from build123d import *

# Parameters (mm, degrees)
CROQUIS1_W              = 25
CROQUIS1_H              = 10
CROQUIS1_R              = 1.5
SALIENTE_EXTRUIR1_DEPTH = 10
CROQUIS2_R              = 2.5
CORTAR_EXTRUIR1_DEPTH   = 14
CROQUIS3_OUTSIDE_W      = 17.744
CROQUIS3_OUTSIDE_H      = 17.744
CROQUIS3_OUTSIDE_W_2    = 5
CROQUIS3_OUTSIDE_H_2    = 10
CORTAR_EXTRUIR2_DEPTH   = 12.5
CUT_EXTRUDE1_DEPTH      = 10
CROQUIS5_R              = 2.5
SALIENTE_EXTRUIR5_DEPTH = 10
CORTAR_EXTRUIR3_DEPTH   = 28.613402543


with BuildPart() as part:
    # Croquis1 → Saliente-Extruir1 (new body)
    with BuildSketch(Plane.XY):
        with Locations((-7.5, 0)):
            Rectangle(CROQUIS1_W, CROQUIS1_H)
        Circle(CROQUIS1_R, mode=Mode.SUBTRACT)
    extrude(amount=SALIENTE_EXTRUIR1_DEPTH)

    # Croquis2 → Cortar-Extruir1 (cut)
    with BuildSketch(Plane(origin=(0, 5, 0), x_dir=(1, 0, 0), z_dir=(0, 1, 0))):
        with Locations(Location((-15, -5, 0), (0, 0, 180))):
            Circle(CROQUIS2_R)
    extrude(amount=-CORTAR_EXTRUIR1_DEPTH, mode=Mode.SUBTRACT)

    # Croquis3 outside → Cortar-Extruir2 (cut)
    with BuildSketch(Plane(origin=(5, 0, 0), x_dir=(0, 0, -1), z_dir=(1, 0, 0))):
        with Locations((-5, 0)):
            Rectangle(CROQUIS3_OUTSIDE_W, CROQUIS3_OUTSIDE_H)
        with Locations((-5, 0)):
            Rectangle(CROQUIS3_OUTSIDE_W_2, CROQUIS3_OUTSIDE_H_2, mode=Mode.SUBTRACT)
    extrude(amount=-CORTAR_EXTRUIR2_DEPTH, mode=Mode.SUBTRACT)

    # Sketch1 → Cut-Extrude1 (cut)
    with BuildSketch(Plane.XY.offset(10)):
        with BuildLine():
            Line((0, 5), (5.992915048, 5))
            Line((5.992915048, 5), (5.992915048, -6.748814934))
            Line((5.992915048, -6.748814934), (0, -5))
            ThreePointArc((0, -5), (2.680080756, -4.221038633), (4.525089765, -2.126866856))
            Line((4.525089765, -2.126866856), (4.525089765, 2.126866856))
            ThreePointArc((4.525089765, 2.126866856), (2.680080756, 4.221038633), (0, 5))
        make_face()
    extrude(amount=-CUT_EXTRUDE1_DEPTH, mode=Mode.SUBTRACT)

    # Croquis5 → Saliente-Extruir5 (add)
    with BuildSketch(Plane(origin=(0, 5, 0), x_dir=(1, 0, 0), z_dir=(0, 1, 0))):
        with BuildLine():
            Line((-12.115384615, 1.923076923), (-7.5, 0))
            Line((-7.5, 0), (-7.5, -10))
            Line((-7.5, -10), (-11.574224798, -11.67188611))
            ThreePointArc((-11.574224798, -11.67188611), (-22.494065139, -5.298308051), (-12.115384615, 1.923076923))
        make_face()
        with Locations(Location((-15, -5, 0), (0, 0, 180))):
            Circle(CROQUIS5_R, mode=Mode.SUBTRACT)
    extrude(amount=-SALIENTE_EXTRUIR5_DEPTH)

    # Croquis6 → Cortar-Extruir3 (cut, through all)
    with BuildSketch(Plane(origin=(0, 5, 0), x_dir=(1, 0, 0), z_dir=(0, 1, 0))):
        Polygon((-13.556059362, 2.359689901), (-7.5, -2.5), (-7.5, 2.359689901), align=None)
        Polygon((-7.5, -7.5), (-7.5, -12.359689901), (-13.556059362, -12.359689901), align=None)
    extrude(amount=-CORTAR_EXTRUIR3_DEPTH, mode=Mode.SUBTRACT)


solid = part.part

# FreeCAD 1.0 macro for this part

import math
import FreeCAD as App
import Part
import Sketcher

V = App.Vector


def add_polygon(sketch, points):
    """Adds a closed chain of lines whose ends are joined by coincident constraints."""
    first, n = sketch.GeometryCount, len(points)
    for a, b in zip(points, points[1:] + points[:1]):
        sketch.addGeometry(Part.LineSegment(App.Vector(*a, 0), App.Vector(*b, 0)), False)
    for i in range(n):
        sketch.addConstraint(Sketcher.Constraint("Coincident", first + i, 2, first + (i + 1) % n, 1))

doc = App.newDocument("Part")
body = doc.addObject("PartDesign::Body", "Body")

# Sketch on XY plane
sketch1 = body.newObject("Sketcher::SketchObject", "Sketch")
sketch1.AttachmentSupport = (doc.getObject("XY_Plane"), [""])
sketch1.MapMode = "FlatFace"
add_polygon(sketch1, [(-20, 5), (-20, -5), (5, -5), (5, 5)])  # lines 0-3
sketch1.addGeometry(Part.Circle(V(0, 0, 0), V(0, 0, 1), 1.5), False)  # 4
sketch1.addConstraint([
    Sketcher.Constraint("Vertical", 0),
    Sketcher.Constraint("Horizontal", 1),
    Sketcher.Constraint("Vertical", 2),
    Sketcher.Constraint("Horizontal", 3),
    Sketcher.Constraint("Coincident", 4, 3, -1, 1),
    Sketcher.Constraint("Diameter", 4, 3.0),
    Sketcher.Constraint("DistanceX", 1, 1, 1, 2, 25.0),
    Sketcher.Constraint("DistanceY", 0, 2, 0, 1, 10.0),
    Sketcher.Constraint("DistanceX", 0, 2, -1, 1, 20.0),
    Sketcher.Constraint("DistanceY", 0, 2, -1, 1, 5.0),
])
pad1 = body.newObject("PartDesign::Pad", "Pad")
pad1.Profile = sketch1
pad1.Length = 10

# Sketch on XZ plane
sketch2 = body.newObject("Sketcher::SketchObject", "Sketch001")
sketch2.AttachmentSupport = (doc.getObject("XZ_Plane"), [""])
sketch2.MapMode = "FlatFace"
sketch2.AttachmentOffset = App.Placement(V(0, 0, -5), App.Rotation())
sketch2.addGeometry(Part.Circle(V(-15, 5, 0), V(0, 0, 1), 2.5), False)
sketch2.addConstraint([
    Sketcher.Constraint("Diameter", 0, 5.0),
    Sketcher.Constraint("DistanceX", 0, 3, -1, 1, 15.0),
    Sketcher.Constraint("DistanceY", -1, 1, 0, 3, 5.0),
])
pocket1 = body.newObject("PartDesign::Pocket", "Pocket")
pocket1.Profile = sketch2
pocket1.Length = 14
pocket1.Reversed = True

# Sketch on YZ plane
sketch3 = body.newObject("Sketcher::SketchObject", "Sketch002")
sketch3.AttachmentSupport = (doc.getObject("YZ_Plane"), [""])
sketch3.MapMode = "FlatFace"
sketch3.AttachmentOffset = App.Placement(V(0, 0, 5), App.Rotation())
add_polygon(sketch3, [(8.872, 13.872), (-8.872, 13.872), (-8.872, -3.872), (8.872, -3.872)])  # lines 0-3
add_polygon(sketch3, [(-5, 2.5), (-5, 7.5), (5, 7.5), (5, 2.5)])  # lines 4-7
sketch3.addConstraint([
    Sketcher.Constraint("Horizontal", 0),
    Sketcher.Constraint("Vertical", 1),
    Sketcher.Constraint("Horizontal", 2),
    Sketcher.Constraint("Vertical", 3),
    Sketcher.Constraint("Vertical", 4),
    Sketcher.Constraint("Horizontal", 5),
    Sketcher.Constraint("Vertical", 6),
    Sketcher.Constraint("Horizontal", 7),
    Sketcher.Constraint("Equal", 2, 1),
    Sketcher.Constraint("DistanceX", 5, 1, 5, 2, 10.0),
    Sketcher.Constraint("DistanceY", 4, 1, 4, 2, 5.0),
    Sketcher.Constraint("DistanceX", 4, 2, -1, 1, 5.0),
    Sketcher.Constraint("DistanceY", -1, 1, 4, 2, 7.5),
    Sketcher.Constraint("DistanceX", 0, 2, 0, 1, 17.744),
    Sketcher.Constraint("DistanceX", 0, 2, -1, 1, 8.872),
    Sketcher.Constraint("DistanceY", -1, 1, 0, 2, 13.872),
])
pocket2 = body.newObject("PartDesign::Pocket", "Pocket001")
pocket2.Profile = sketch3
pocket2.Length = 12.5

# Sketch on XY plane
sketch4 = body.newObject("Sketcher::SketchObject", "Sketch003")
sketch4.AttachmentSupport = (doc.getObject("XY_Plane"), [""])
sketch4.MapMode = "FlatFace"
sketch4.AttachmentOffset = App.Placement(V(0, 0, 10), App.Rotation())
sketch4.addGeometry([
    Part.LineSegment(V(5.992915, 5, 0), V(0, 5, 0)),  # 0
    Part.ArcOfCircle(Part.Circle(V(0, 0, 0), V(0, 0, 1), 5), math.radians(25.174299), math.radians(90)),  # 1
    Part.LineSegment(V(4.52509, 2.126867, 0), V(4.52509, -2.126867, 0)),  # 2
    Part.ArcOfCircle(Part.Circle(V(0, 0, 0), V(0, 0, 1), 5), math.radians(-90), math.radians(-25.174299)),  # 3
    Part.LineSegment(V(0, -5, 0), V(5.992915, -6.748815, 0)),  # 4
    Part.LineSegment(V(5.992915, -6.748815, 0), V(5.992915, 5, 0)),  # 5
], False)
sketch4.addConstraint([
    Sketcher.Constraint("Tangent", 0, 2, 1, 2),
    Sketcher.Constraint("Coincident", 1, 1, 2, 1),
    Sketcher.Constraint("Coincident", 2, 2, 3, 2),
    Sketcher.Constraint("Coincident", 3, 1, 4, 1),
    Sketcher.Constraint("Coincident", 4, 2, 5, 1),
    Sketcher.Constraint("Coincident", 5, 2, 0, 1),
    Sketcher.Constraint("Horizontal", 0),
    Sketcher.Constraint("Vertical", 2),
    Sketcher.Constraint("Vertical", 5),
    Sketcher.Constraint("Coincident", 1, 3, -1, 1),
    Sketcher.Constraint("Coincident", 3, 3, -1, 1),
    Sketcher.Constraint("Equal", 1, 3),
    Sketcher.Constraint("PointOnObject", 3, 1, -2),
    Sketcher.Constraint("Radius", 1, 5.0),
    Sketcher.Constraint("DistanceX", 0, 2, 0, 1, 5.992915),
    Sketcher.Constraint("DistanceY", 2, 2, 2, 1, 4.253734),
    Sketcher.Constraint("DistanceY", 5, 1, 5, 2, 11.748815),
])
pocket3 = body.newObject("PartDesign::Pocket", "Pocket002")
pocket3.Profile = sketch4
pocket3.Length = 10

# Sketch on XZ plane
sketch5 = body.newObject("Sketcher::SketchObject", "Sketch004")
sketch5.AttachmentSupport = (doc.getObject("XZ_Plane"), [""])
sketch5.MapMode = "FlatFace"
sketch5.AttachmentOffset = App.Placement(V(0, 0, -5), App.Rotation())
sketch5.addGeometry([
    Part.LineSegment(V(-7.5, 0, 0), V(-12.115385, -1.923077, 0)),  # 0
    Part.ArcOfCircle(Part.Circle(V(-15, 5, 0), V(0, 0, 1), 7.5), math.radians(62.821121), math.radians(292.619865)),  # 1
    Part.LineSegment(V(-11.574225, 11.671886, 0), V(-7.5, 10, 0)),  # 2
    Part.LineSegment(V(-7.5, 10, 0), V(-7.5, 0, 0)),  # 3
    Part.Circle(V(-15, 5, 0), V(0, 0, 1), 2.5),  # 4
], False)
sketch5.addConstraint([
    Sketcher.Constraint("Tangent", 0, 2, 1, 2),
    Sketcher.Constraint("Coincident", 1, 1, 2, 1),
    Sketcher.Constraint("Coincident", 2, 2, 3, 1),
    Sketcher.Constraint("Coincident", 3, 2, 0, 1),
    Sketcher.Constraint("Vertical", 3),
    Sketcher.Constraint("Coincident", 4, 3, 1, 3),
    Sketcher.Constraint("PointOnObject", 3, 2, -1),
    Sketcher.Constraint("Diameter", 4, 5.0),
    Sketcher.Constraint("Radius", 1, 7.5),
    Sketcher.Constraint("DistanceY", 3, 2, 3, 1, 10.0),
    Sketcher.Constraint("Distance", 0, 5.0),
    Sketcher.Constraint("DistanceX", 1, 3, -1, 1, 15.0),
    Sketcher.Constraint("DistanceY", -1, 1, 1, 3, 5.0),
    Sketcher.Constraint("Distance", 2, 4.40392),
])
pad2 = body.newObject("PartDesign::Pad", "Pad001")
pad2.Profile = sketch5
pad2.Length = 10

# Sketch on XZ plane
sketch6 = body.newObject("Sketcher::SketchObject", "Sketch005")
sketch6.AttachmentSupport = (doc.getObject("XZ_Plane"), [""])
sketch6.MapMode = "FlatFace"
sketch6.AttachmentOffset = App.Placement(V(0, 0, -5), App.Rotation())
add_polygon(sketch6, [(-13.556059, -2.35969), (-7.5, 2.5), (-7.5, -2.35969)])  # lines 0-2
add_polygon(sketch6, [(-7.5, 12.35969), (-7.5, 7.5), (-13.556059, 12.35969)])  # lines 3-5
sketch6.addConstraint([
    Sketcher.Constraint("Vertical", 1),
    Sketcher.Constraint("Horizontal", 2),
    Sketcher.Constraint("Vertical", 3),
    Sketcher.Constraint("Horizontal", 5),
    Sketcher.Constraint("Vertical", 1, 2, 3, 2),
    Sketcher.Constraint("Vertical", 2, 2, 4, 2),
    Sketcher.Constraint("Equal", 1, 3),
    Sketcher.Constraint("DistanceY", 0, 2, 3, 2, 5.0),
    Sketcher.Constraint("DistanceX", 0, 2, -1, 1, 7.5),
    Sketcher.Constraint("DistanceY", -1, 1, 0, 2, 2.5),
    Sketcher.Constraint("DistanceX", 2, 2, 2, 1, 6.056059),
    Sketcher.Constraint("DistanceY", 1, 2, 1, 1, 4.85969),
])
pocket4 = body.newObject("PartDesign::Pocket", "Pocket003")
pocket4.Profile = sketch6
pocket4.Type = "ThroughAll"
pocket4.Reversed = True

doc.recompute()
